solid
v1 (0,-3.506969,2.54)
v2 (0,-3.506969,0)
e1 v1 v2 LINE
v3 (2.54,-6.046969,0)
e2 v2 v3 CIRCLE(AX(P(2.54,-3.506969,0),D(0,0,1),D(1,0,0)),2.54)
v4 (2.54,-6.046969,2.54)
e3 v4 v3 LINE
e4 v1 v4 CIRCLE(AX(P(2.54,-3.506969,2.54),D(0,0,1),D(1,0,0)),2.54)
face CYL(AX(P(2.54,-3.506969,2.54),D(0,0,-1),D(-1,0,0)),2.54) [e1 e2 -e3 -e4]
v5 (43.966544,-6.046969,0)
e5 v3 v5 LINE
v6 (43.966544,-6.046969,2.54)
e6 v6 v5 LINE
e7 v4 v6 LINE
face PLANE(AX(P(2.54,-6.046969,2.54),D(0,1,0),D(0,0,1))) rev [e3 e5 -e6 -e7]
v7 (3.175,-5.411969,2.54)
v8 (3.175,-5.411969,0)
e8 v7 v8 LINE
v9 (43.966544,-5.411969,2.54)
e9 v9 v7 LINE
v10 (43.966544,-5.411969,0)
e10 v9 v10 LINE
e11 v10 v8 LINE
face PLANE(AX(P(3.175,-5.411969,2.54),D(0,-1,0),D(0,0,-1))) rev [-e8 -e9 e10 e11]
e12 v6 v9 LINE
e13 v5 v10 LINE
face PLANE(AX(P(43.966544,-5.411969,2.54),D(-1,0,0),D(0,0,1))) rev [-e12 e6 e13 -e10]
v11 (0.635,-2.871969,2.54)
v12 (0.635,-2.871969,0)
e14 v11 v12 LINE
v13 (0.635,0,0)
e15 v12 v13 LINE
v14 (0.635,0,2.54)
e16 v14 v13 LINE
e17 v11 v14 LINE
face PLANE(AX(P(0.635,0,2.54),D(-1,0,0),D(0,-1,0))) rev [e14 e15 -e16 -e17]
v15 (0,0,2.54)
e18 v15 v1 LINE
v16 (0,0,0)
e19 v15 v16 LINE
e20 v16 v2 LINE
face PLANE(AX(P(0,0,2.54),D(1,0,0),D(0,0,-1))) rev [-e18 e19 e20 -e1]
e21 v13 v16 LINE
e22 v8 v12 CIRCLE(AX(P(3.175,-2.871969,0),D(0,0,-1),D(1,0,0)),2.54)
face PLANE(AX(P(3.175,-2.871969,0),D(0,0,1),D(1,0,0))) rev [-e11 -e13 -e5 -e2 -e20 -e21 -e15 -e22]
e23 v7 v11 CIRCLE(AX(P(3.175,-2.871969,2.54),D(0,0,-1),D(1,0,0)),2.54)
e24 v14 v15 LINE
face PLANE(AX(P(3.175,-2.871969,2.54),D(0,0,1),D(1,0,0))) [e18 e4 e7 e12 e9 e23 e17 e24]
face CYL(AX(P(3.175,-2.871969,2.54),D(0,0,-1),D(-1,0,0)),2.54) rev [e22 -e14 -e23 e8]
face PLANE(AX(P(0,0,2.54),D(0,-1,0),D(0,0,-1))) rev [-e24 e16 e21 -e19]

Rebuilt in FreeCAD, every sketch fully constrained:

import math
import FreeCAD as App
import Part
import Sketcher
from FreeCAD import Vector
Q = App.Units.Quantity

doc = App.newDocument("Part")
body = doc.addObject("PartDesign::Body", "Body")

# Sketch on XY plane
sketch1 = doc.addObject("Sketcher::SketchObject", "Sketch")
body.addObject(sketch1)
sketch1.AttachmentSupport = (doc.XY_Plane, [""])
sketch1.MapMode = "FlatFace"
sketch1.addGeometry([
    Part.LineSegment(Vector(0, 0, 0), Vector(0, -3.5, 0)),  # 0
    Part.ArcOfCircle(Part.Circle(Vector(2.5, -3.5, 0), Vector(0, 0, 1), 2.5), math.radians(-180), math.radians(-90)),  # 1
    Part.LineSegment(Vector(2.5, -6, 0), Vector(44, -6, 0)),  # 2
    Part.LineSegment(Vector(44, -6, 0), Vector(44, -5.4, 0)),  # 3
    Part.LineSegment(Vector(44, -5.4, 0), Vector(3.2, -5.4, 0)),  # 4
    Part.ArcOfCircle(Part.Circle(Vector(3.2, -2.9, 0), Vector(0, 0, 1), 2.5), math.radians(-180), math.radians(-90)),  # 5
    Part.LineSegment(Vector(0.6, -2.9, 0), Vector(0.6, 0, 0)),  # 6
    Part.LineSegment(Vector(0.6, 0, 0), Vector(0, 0, 0)),  # 7
], False)
sketch1.addConstraint([
    Sketcher.Constraint("Tangent", 0, 2, 1, 1),
    Sketcher.Constraint("Tangent", 1, 2, 2, 1),
    Sketcher.Constraint("Coincident", 2, 2, 3, 1),
    Sketcher.Constraint("Coincident", 3, 2, 4, 1),
    Sketcher.Constraint("Tangent", 4, 2, 5, 2),
    Sketcher.Constraint("Tangent", 5, 1, 6, 1),
    Sketcher.Constraint("Coincident", 6, 2, 7, 1),
    Sketcher.Constraint("Coincident", 7, 2, 0, 1),
    Sketcher.Constraint("Vertical", 0),
    Sketcher.Constraint("Horizontal", 2),
    Sketcher.Constraint("Vertical", 3),
    Sketcher.Constraint("Horizontal", 4),
    Sketcher.Constraint("Vertical", 6),
    Sketcher.Constraint("Horizontal", 7),
    Sketcher.Constraint("Coincident", 7, 2, -1, 1),
    Sketcher.Constraint("Equal", 1, 5),
    Sketcher.Constraint("Equal", 7, 3),
    Sketcher.Constraint("Radius", 1, Q("0.1 in")),
    Sketcher.Constraint("DistanceX", 7, 2, 7, 1, Q("0.025 in")),
    Sketcher.Constraint("DistanceY", 0, 2, 0, 1, Q("3.506969 mm")),
    Sketcher.Constraint("DistanceX", 2, 1, 2, 2, Q("41.426544 mm")),
])
pad1 = doc.addObject("PartDesign::Pad", "Pad")
body.addObject(pad1)
pad1.Profile = sketch1
pad1.Length = Q("0.1 in")

doc.recompute()
